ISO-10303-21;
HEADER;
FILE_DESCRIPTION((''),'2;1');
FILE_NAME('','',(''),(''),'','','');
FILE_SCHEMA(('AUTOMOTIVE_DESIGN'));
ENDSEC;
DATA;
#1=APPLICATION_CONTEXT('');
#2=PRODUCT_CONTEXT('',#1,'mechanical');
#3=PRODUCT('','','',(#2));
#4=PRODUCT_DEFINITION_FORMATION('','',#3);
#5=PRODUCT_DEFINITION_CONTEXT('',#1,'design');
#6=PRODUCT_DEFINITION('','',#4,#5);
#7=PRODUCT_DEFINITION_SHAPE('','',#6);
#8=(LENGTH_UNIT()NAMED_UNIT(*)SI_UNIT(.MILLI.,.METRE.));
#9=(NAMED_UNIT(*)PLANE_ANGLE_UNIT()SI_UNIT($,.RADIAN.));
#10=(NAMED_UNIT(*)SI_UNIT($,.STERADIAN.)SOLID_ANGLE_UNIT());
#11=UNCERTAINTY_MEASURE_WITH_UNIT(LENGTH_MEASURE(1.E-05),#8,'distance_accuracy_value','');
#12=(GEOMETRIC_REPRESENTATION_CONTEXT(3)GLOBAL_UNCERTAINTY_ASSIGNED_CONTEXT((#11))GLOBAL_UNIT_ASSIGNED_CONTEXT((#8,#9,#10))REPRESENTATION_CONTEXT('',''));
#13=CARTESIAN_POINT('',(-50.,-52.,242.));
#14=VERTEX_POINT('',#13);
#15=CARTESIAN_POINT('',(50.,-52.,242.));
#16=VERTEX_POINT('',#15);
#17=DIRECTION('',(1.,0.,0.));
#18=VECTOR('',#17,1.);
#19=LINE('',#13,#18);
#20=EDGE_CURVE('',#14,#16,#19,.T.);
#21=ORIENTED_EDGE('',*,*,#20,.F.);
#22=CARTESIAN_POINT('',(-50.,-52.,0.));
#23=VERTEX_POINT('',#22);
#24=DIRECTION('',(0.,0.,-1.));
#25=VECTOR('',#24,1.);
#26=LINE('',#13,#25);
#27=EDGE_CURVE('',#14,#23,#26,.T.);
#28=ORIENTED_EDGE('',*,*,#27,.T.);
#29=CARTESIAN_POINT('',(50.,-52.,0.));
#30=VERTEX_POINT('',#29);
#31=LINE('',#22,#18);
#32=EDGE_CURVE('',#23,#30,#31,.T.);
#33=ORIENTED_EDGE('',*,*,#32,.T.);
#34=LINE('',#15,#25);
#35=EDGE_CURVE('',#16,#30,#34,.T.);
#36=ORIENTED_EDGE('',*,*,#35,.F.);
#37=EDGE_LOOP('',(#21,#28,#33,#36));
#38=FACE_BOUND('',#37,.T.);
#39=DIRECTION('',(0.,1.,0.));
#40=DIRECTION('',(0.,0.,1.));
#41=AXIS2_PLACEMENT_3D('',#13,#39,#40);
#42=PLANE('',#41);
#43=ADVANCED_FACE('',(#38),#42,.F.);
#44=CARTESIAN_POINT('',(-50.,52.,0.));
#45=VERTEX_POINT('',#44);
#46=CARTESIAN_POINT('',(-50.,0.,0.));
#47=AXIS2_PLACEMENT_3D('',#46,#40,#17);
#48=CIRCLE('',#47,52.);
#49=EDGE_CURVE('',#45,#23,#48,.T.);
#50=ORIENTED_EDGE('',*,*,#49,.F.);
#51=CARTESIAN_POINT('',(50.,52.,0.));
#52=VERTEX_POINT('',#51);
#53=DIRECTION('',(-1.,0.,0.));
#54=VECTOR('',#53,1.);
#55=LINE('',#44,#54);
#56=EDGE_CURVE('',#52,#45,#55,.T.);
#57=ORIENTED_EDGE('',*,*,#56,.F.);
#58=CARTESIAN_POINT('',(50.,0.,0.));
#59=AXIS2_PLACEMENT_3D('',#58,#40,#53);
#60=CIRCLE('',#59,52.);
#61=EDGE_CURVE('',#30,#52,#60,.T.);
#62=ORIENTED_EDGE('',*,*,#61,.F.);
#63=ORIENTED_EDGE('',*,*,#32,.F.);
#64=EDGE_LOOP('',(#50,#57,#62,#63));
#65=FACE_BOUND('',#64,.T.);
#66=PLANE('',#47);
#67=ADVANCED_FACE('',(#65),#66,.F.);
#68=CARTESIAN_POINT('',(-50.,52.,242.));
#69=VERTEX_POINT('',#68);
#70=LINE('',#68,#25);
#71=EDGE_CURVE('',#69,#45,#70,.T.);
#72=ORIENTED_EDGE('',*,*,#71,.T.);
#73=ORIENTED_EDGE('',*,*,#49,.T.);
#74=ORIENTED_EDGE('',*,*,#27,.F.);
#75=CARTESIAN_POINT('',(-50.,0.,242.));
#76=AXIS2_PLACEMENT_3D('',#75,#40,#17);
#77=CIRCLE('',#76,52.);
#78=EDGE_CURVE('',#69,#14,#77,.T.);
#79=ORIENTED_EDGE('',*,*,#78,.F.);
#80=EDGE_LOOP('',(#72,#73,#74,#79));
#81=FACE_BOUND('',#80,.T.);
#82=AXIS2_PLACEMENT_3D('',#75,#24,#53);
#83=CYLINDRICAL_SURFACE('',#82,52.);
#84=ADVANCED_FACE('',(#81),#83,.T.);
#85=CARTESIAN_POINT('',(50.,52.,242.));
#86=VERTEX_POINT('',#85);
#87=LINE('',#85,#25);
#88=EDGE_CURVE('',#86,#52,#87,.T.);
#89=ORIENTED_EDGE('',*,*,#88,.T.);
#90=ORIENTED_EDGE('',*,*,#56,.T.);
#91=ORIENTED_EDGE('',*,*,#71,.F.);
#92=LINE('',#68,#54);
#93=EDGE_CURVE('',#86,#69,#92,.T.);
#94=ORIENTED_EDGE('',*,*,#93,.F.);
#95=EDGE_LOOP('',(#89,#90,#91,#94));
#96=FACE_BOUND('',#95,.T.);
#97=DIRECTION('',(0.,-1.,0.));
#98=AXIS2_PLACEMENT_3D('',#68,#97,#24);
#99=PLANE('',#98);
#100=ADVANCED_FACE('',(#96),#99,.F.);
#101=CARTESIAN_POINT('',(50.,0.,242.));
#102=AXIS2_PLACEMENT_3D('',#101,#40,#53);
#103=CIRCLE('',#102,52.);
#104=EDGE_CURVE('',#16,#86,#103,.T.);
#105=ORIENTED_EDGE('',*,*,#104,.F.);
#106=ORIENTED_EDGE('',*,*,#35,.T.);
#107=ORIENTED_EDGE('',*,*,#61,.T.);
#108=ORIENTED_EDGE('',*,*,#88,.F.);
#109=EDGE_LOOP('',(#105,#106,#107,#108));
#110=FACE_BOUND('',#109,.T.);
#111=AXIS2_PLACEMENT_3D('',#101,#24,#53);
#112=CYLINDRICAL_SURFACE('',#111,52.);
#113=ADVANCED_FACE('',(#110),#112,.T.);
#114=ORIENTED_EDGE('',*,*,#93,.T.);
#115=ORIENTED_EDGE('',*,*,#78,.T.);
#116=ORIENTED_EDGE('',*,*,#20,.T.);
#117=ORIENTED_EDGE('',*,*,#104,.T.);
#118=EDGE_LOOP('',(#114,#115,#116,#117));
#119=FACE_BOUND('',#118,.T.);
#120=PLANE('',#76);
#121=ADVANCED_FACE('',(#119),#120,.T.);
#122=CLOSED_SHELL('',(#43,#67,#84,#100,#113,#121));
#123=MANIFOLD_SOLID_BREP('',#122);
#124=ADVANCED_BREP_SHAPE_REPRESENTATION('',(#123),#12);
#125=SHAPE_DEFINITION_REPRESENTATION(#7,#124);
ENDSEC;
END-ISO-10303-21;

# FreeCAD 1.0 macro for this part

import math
import FreeCAD as App
import Part
import Sketcher
from FreeCAD import Vector

doc = App.newDocument("Part")
body = doc.addObject("PartDesign::Body", "Body")

sketch1 = body.newObject("Sketcher::SketchObject", "Sketch")
sketch1.AttachmentSupport = (doc.getObject("XY_Plane"), [""])
sketch1.MapMode = "FlatFace"
sketch1.addGeometry([
    Part.LineSegment(Vector(50, 52, 0), Vector(-50, 52, 0)),
    Part.ArcOfCircle(Part.Circle(Vector(-50, 0, 0), Vector(0, 0, 1), 52), math.radians(90), math.radians(270)),
    Part.LineSegment(Vector(-50, -52, 0), Vector(50, -52, 0)),
    Part.ArcOfCircle(Part.Circle(Vector(50, 0, 0), Vector(0, 0, 1), 52), math.radians(-90), math.radians(90)),
], False)
sketch1.addConstraint([
    Sketcher.Constraint("Tangent", 0, 2, 1, 1),
    Sketcher.Constraint("Tangent", 1, 2, 2, 1),
    Sketcher.Constraint("Tangent", 2, 2, 3, 1),
    Sketcher.Constraint("Tangent", 3, 2, 0, 1),
    Sketcher.Constraint("Horizontal", 0),
    Sketcher.Constraint("Horizontal", 2),
    Sketcher.Constraint("Symmetric", 1, 3, 3, 3, -1, 1),
    Sketcher.Constraint("Radius", 1, 52.0),
    Sketcher.Constraint("DistanceX", 0, 2, 0, 1, 100.0),
])
pad1 = body.newObject("PartDesign::Pad", "Pad")
pad1.Profile = sketch1
pad1.Length = 242

doc.recompute()
